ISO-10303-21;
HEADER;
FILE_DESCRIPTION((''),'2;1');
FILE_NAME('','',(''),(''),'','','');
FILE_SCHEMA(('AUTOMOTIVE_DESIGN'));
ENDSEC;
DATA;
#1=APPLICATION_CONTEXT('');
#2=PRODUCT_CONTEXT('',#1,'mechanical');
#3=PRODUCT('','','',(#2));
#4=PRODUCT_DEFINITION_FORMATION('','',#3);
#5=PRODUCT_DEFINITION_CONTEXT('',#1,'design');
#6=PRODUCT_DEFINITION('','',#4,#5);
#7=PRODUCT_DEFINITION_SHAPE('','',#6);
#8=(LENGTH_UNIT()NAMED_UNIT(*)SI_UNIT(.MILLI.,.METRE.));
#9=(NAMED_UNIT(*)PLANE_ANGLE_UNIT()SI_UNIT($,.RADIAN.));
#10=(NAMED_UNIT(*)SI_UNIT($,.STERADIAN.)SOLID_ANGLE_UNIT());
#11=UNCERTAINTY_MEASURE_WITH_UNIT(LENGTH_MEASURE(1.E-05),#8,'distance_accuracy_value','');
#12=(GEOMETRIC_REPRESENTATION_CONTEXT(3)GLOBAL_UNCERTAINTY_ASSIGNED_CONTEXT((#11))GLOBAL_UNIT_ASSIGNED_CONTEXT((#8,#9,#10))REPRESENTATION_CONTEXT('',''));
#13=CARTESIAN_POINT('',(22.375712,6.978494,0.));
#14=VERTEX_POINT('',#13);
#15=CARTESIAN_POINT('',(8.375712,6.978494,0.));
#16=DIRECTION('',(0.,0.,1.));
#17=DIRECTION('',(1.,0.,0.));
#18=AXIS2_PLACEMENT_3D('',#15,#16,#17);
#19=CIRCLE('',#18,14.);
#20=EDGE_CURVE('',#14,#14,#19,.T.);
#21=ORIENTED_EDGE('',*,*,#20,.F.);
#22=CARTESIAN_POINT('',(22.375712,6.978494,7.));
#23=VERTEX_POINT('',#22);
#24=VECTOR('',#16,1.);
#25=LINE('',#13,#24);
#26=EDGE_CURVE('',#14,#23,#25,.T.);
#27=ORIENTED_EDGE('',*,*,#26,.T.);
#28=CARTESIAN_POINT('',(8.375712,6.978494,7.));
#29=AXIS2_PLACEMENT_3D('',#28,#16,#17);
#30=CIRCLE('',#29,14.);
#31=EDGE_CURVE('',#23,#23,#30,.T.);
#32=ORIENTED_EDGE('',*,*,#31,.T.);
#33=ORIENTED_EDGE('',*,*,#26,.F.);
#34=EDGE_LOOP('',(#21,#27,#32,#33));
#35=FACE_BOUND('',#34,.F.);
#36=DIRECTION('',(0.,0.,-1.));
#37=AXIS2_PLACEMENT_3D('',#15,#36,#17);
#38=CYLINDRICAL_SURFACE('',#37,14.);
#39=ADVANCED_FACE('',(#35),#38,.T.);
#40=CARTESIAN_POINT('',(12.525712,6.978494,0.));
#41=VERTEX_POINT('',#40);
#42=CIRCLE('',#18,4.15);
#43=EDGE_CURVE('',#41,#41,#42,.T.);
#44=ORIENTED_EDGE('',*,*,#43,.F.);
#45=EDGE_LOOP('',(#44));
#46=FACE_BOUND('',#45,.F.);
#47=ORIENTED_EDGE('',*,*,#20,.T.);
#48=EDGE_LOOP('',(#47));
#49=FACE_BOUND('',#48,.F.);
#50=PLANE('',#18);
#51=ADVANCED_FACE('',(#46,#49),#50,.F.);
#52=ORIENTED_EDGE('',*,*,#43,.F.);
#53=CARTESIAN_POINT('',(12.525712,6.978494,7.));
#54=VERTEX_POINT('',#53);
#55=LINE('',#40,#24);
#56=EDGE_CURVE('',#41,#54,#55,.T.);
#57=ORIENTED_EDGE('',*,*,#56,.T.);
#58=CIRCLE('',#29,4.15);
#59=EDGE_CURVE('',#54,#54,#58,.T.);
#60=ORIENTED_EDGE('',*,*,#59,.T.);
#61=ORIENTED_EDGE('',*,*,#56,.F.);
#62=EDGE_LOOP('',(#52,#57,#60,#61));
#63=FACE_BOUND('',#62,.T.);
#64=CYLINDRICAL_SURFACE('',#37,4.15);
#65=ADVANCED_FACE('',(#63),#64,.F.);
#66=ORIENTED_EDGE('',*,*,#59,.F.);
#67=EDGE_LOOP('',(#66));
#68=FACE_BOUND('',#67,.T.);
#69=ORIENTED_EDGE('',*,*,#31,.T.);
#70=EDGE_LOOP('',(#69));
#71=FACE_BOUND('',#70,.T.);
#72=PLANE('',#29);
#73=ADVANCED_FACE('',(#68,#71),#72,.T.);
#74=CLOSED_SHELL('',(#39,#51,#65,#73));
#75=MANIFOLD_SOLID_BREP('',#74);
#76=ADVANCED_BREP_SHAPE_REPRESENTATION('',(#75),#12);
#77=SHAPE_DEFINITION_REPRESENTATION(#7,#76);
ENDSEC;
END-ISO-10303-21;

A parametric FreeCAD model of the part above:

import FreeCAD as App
import Part
import Sketcher

V = App.Vector

doc = App.newDocument("Part")
body = doc.addObject("PartDesign::Body", "Body")

sketch1 = body.newObject("Sketcher::SketchObject", "Sketch")
sketch1.AttachmentSupport = (doc.getObject("XY_Plane"), [""])
sketch1.MapMode = "FlatFace"
sketch1.addGeometry(Part.Circle(V(8.4, 7, 0), V(0, 0, 1), 14), False)
sketch1.addGeometry(Part.Circle(V(8.4, 7, 0), V(0, 0, 1), 4.2), False)
sketch1.addConstraint(Sketcher.Constraint("Coincident", 1, 3, 0, 3))
sketch1.addConstraint(Sketcher.Constraint("Diameter", 0, 28.0))
sketch1.addConstraint(Sketcher.Constraint("Diameter", 1, 8.3))
sketch1.addConstraint(Sketcher.Constraint("DistanceX", -1, 1, 0, 3, 8.375712))
sketch1.addConstraint(Sketcher.Constraint("DistanceY", -1, 1, 0, 3, 6.978494))
pad1 = body.newObject("PartDesign::Pad", "Pad")
pad1.Profile = sketch1
pad1.Length = 7

doc.recompute()
